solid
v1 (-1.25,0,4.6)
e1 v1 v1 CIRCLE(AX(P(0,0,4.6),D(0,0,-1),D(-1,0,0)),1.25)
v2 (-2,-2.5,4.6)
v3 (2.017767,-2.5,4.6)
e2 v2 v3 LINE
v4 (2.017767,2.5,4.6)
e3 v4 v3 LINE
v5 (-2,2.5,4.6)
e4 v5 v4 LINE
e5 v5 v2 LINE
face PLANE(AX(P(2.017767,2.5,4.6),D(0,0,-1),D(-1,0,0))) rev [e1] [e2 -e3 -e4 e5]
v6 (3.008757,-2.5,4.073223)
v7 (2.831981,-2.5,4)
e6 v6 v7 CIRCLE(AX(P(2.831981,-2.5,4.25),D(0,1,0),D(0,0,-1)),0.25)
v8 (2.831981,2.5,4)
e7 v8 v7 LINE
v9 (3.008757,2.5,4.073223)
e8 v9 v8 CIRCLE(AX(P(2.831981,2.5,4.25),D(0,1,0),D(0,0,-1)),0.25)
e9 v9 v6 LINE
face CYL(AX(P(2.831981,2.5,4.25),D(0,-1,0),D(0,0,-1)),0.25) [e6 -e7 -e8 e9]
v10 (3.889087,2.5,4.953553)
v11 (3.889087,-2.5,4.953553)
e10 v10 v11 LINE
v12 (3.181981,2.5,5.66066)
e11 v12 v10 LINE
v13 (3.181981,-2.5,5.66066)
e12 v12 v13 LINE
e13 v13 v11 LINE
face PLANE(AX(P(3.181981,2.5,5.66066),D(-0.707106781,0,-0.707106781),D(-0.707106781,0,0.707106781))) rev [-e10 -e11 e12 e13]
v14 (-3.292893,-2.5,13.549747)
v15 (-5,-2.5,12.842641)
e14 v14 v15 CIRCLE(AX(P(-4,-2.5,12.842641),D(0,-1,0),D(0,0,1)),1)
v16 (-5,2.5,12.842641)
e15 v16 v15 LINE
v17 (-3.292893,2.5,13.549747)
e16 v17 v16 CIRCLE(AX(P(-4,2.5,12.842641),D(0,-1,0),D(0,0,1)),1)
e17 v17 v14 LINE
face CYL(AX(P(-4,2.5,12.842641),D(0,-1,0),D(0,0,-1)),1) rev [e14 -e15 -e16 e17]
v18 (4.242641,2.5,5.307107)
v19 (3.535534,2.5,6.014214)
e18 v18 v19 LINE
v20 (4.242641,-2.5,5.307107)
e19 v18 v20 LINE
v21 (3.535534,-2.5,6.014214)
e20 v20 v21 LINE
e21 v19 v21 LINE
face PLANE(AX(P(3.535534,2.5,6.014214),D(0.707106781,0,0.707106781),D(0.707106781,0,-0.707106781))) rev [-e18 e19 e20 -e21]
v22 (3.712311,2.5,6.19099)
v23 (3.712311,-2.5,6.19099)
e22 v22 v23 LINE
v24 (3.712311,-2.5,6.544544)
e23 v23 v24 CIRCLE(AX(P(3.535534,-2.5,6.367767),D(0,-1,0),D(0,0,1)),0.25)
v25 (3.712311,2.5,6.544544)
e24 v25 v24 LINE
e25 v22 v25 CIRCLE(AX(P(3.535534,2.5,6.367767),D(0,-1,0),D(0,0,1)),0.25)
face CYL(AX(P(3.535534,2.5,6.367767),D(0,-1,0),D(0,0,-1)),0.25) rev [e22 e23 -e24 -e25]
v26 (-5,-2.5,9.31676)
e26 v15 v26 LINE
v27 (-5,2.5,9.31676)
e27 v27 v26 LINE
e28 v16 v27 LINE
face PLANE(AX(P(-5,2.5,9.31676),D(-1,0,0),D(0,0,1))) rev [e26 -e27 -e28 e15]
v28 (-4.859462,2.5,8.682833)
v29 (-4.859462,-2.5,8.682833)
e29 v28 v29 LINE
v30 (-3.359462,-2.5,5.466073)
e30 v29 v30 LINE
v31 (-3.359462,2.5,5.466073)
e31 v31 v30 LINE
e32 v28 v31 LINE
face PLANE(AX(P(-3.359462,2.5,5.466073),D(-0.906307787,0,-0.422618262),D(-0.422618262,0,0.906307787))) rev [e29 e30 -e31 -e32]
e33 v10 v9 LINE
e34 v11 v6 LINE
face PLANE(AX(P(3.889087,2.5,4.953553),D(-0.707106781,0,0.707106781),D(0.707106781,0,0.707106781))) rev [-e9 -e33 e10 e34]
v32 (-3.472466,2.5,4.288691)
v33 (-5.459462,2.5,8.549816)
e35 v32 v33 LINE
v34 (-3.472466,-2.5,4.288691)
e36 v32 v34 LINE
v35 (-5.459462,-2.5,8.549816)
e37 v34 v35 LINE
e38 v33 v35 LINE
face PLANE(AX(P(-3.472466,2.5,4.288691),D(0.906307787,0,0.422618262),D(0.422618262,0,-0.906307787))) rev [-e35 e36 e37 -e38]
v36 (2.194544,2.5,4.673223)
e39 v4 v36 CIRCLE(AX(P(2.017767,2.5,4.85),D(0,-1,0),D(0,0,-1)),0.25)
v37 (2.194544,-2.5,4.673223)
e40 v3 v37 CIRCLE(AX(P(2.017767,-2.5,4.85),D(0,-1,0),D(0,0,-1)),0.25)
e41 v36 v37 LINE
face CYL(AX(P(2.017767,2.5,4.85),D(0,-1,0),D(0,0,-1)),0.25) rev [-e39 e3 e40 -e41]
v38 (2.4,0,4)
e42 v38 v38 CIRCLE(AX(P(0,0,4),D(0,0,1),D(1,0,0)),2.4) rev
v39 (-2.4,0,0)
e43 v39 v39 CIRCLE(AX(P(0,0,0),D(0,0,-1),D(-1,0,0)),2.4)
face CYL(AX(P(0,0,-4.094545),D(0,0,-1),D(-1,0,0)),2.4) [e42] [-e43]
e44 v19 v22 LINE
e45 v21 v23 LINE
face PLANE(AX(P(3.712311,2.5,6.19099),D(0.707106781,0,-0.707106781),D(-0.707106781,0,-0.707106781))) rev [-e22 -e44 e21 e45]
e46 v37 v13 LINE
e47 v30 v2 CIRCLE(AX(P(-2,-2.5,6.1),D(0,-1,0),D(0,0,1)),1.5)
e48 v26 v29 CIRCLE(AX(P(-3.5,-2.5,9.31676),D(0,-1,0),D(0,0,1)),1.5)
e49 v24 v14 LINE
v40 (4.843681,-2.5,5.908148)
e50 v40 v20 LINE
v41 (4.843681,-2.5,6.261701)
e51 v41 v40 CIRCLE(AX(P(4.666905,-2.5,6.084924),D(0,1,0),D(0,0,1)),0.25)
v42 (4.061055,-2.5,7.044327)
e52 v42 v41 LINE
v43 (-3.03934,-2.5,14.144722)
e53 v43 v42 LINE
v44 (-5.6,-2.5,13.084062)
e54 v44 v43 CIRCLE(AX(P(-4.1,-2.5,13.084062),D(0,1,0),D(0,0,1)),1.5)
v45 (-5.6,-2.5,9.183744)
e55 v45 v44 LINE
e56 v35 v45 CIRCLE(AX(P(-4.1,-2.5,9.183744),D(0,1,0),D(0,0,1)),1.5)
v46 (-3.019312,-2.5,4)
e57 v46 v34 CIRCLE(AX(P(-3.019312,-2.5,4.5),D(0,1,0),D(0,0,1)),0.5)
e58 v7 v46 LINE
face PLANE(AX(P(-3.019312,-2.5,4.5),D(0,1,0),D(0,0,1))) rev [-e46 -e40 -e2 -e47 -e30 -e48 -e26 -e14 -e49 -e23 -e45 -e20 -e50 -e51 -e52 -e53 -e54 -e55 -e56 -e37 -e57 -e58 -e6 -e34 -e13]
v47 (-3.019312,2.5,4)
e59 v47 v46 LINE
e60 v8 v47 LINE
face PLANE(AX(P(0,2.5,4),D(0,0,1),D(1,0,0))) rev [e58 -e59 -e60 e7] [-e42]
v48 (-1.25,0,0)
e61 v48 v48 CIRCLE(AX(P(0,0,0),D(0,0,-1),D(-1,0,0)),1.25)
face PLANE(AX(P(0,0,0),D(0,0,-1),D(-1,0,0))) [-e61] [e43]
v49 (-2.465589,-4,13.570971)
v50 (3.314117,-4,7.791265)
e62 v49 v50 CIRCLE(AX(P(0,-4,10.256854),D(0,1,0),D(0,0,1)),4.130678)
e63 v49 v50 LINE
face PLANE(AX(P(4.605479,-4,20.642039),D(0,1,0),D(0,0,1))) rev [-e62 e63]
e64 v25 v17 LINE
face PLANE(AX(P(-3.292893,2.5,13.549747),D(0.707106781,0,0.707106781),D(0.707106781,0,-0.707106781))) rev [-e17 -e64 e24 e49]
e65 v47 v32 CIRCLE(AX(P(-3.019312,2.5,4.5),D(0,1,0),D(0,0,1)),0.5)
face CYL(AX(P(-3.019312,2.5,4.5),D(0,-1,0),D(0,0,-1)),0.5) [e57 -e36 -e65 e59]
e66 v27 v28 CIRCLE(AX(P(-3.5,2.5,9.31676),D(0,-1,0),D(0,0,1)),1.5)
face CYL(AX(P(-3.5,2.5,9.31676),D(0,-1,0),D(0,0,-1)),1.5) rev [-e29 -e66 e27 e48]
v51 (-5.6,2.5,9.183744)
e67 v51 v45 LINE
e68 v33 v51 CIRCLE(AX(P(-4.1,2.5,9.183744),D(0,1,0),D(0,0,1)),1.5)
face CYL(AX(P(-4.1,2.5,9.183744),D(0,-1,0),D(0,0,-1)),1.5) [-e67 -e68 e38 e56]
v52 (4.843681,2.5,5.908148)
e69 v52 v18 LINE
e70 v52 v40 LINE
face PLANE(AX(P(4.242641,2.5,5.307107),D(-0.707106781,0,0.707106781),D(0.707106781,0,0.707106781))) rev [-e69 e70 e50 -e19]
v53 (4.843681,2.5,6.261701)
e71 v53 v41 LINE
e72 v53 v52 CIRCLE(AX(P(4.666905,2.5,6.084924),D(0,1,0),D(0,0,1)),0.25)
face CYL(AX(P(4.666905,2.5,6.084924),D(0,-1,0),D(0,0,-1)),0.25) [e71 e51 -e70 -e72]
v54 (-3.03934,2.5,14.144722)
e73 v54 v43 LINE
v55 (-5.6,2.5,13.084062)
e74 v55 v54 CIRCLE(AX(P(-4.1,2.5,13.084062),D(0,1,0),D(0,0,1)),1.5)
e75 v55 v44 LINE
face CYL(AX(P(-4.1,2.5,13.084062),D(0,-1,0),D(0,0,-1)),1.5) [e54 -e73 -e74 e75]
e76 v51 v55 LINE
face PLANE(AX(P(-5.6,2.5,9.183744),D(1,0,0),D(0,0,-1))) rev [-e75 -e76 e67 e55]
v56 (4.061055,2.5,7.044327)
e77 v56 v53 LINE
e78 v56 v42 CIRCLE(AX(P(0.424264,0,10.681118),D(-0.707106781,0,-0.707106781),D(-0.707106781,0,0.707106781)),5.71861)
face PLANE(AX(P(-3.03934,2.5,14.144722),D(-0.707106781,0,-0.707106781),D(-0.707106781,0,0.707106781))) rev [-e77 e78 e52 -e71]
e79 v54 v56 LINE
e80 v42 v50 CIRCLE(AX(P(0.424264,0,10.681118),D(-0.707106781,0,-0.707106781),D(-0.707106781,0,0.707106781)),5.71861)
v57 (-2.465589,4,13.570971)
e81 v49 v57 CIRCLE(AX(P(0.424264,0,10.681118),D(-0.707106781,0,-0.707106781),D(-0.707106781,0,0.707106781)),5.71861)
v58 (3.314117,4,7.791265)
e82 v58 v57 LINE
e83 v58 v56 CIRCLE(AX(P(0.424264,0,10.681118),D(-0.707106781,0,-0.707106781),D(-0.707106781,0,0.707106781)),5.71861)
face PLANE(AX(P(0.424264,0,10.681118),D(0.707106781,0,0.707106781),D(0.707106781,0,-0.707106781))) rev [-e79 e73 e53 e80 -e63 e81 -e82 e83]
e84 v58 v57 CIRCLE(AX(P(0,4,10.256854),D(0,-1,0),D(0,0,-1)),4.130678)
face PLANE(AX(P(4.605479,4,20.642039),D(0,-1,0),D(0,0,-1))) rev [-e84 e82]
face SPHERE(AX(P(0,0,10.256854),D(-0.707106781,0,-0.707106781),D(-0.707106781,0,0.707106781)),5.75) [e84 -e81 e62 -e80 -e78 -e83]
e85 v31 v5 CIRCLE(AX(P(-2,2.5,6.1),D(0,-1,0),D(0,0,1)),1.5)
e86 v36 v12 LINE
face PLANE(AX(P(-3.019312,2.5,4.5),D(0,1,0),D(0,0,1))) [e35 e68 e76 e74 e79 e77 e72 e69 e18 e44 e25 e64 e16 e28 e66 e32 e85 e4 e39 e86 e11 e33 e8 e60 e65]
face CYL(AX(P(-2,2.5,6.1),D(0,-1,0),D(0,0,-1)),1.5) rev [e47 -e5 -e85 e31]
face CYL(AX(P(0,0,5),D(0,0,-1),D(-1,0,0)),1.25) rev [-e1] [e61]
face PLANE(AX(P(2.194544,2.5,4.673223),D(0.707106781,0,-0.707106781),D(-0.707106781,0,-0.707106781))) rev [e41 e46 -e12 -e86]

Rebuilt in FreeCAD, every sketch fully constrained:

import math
import FreeCAD as App
import Part
import Sketcher
from FreeCAD import Vector
Q = App.Units.Quantity

doc = App.newDocument("Part")
params = doc.addObject("Spreadsheet::Sheet", "Params")
for row, (alias, value) in enumerate([
    ("sketch1_height", "4 mm"),
    ("sketch1_width", "2.4 mm"),
    ("revolution_angle", "360 deg"),
    ("sketch2_radius", "1 mm"),
    ("sketch2_radius2", "0.5 mm"),
    ("sketch2_radius3", "1.5 mm"),
    ("sketch2_radius4", "0.25 mm"),
    ("sketch2_length", "1 mm"),
    ("pad1_length", "5 mm"),
    ("sketch3_diameter", "2.5 mm"),
    ("pocket1_length", "5 mm"),
    ("sketch4_radius", "5.75 mm"),
    ("sketch4_length", "5.15 mm"),
    ("revolution2_angle", "360 deg"),
    ("pocket2_length", "10 mm"),
], start=1):
    params.set(f"A{row}", alias)
    params.set(f"B{row}", "=" + value)
    params.setAlias(f"B{row}", alias)

body = doc.addObject("PartDesign::Body", "Body")

# Sketch on XZ plane
sketch1 = body.newObject("Sketcher::SketchObject", "Sketch")
sketch1.AttachmentSupport = (doc.getObject("XZ_Plane"), [""])
sketch1.MapMode = "FlatFace"
sketch1.addGeometry([
    Part.LineSegment(Vector(-2.4, 0, 0), Vector(-2.4, 4, 0)),
    Part.LineSegment(Vector(-2.4, 4, 0), Vector(0, 4, 0)),
    Part.LineSegment(Vector(0, 4, 0), Vector(0, 0, 0)),
    Part.LineSegment(Vector(0, 0, 0), Vector(-2.4, 0, 0)),
], False)
sketch1.addConstraint([
    Sketcher.Constraint("Coincident", 0, 2, 1, 1),
    Sketcher.Constraint("Coincident", 1, 2, 2, 1),
    Sketcher.Constraint("Coincident", 2, 2, 3, 1),
    Sketcher.Constraint("Coincident", 3, 2, 0, 1),
    Sketcher.Constraint("Vertical", 0),
    Sketcher.Constraint("Horizontal", 1),
    Sketcher.Constraint("Vertical", 2),
    Sketcher.Constraint("Horizontal", 3),
    Sketcher.Constraint("Coincident", 2, 2, -1, 1),
    Sketcher.Constraint("DistanceY", 0, 1, 0, 2, 4.0),
    Sketcher.Constraint("DistanceX", 1, 1, 1, 2, 2.4),
])
sketch1.setExpression("Constraints[9]", "Params.sketch1_height")
sketch1.setExpression("Constraints[10]", "Params.sketch1_width")
revolution = body.newObject("PartDesign::Revolution", "Revolution")
revolution.Profile = sketch1
revolution.ReferenceAxis = (sketch1, ["V_Axis"])
revolution.setExpression("Angle", "Params.revolution_angle")

# Sketch on XZ plane
sketch2 = body.newObject("Sketcher::SketchObject", "Sketch001")
sketch2.AttachmentSupport = (doc.getObject("XZ_Plane"), [""])
sketch2.MapMode = "FlatFace"
sketch2.addGeometry([
    Part.ArcOfCircle(Part.Circle(Vector(-3.02, 4.5, 0), Vector(0, 0, 1), 0.5), math.radians(-155), math.radians(-90)),  # 0
    Part.LineSegment(Vector(-3.47, 4.29, 0), Vector(-5.46, 8.55, 0)),  # 1
    Part.ArcOfCircle(Part.Circle(Vector(-4.1, 9.18, 0), Vector(0, 0, 1), 1.5), math.radians(180), math.radians(205)),  # 2
    Part.LineSegment(Vector(-5.6, 9.18, 0), Vector(-5.6, 13.08, 0)),  # 3
    Part.ArcOfCircle(Part.Circle(Vector(-4.1, 13.08, 0), Vector(0, 0, 1), 1.5), math.radians(45), math.radians(180)),  # 4
    Part.LineSegment(Vector(-3.04, 14.14, 0), Vector(4.84, 6.26, 0)),  # 5
    Part.ArcOfCircle(Part.Circle(Vector(4.67, 6.08, 0), Vector(0, 0, 1), 0.25), math.radians(-45), math.radians(45)),  # 6
    Part.LineSegment(Vector(4.84, 5.91, 0), Vector(4.24, 5.31, 0)),  # 7
    Part.LineSegment(Vector(4.24, 5.31, 0), Vector(3.54, 6.01, 0)),  # 8
    Part.LineSegment(Vector(3.54, 6.01, 0), Vector(3.71, 6.19, 0)),  # 9
    Part.ArcOfCircle(Part.Circle(Vector(3.54, 6.37, 0), Vector(0, 0, 1), 0.25), math.radians(-45), math.radians(45)),  # 10
    Part.LineSegment(Vector(3.71, 6.54, 0), Vector(-3.29, 13.55, 0)),  # 11
    Part.ArcOfCircle(Part.Circle(Vector(-4, 12.84, 0), Vector(0, 0, 1), 1), math.radians(45), math.radians(180)),  # 12
    Part.LineSegment(Vector(-5, 12.84, 0), Vector(-5, 9.32, 0)),  # 13
    Part.ArcOfCircle(Part.Circle(Vector(-3.5, 9.32, 0), Vector(0, 0, 1), 1.5), math.radians(180), math.radians(205)),  # 14
    Part.LineSegment(Vector(-4.86, 8.68, 0), Vector(-3.36, 5.47, 0)),  # 15
    Part.ArcOfCircle(Part.Circle(Vector(-2, 6.1, 0), Vector(0, 0, 1), 1.5), math.radians(-155), math.radians(-90)),  # 16
    Part.LineSegment(Vector(-2, 4.6, 0), Vector(2.02, 4.6, 0)),  # 17
    Part.ArcOfCircle(Part.Circle(Vector(2.02, 4.85, 0), Vector(0, 0, 1), 0.25), math.radians(-90), math.radians(-45)),  # 18
    Part.LineSegment(Vector(2.19, 4.67, 0), Vector(3.18, 5.66, 0)),  # 19
    Part.LineSegment(Vector(3.18, 5.66, 0), Vector(3.89, 4.95, 0)),  # 20
    Part.LineSegment(Vector(3.89, 4.95, 0), Vector(3.01, 4.07, 0)),  # 21
    Part.ArcOfCircle(Part.Circle(Vector(2.83, 4.25, 0), Vector(0, 0, 1), 0.25), math.radians(-90), math.radians(-45)),  # 22
    Part.LineSegment(Vector(2.83, 4, 0), Vector(-3.02, 4, 0)),  # 23
], False)
sketch2.addConstraint([
    Sketcher.Constraint("Tangent", 0, 1, 1, 1),
    Sketcher.Constraint("Tangent", 1, 2, 2, 2),
    Sketcher.Constraint("Tangent", 2, 1, 3, 1),
    Sketcher.Constraint("Tangent", 3, 2, 4, 2),
    Sketcher.Constraint("Tangent", 4, 1, 5, 1),
    Sketcher.Constraint("Tangent", 5, 2, 6, 2),
    Sketcher.Constraint("Tangent", 6, 1, 7, 1),
    Sketcher.Constraint("Coincident", 7, 2, 8, 1),
    Sketcher.Constraint("Coincident", 8, 2, 9, 1),
    Sketcher.Constraint("Tangent", 9, 2, 10, 1),
    Sketcher.Constraint("Tangent", 10, 2, 11, 1),
    Sketcher.Constraint("Tangent", 11, 2, 12, 1),
    Sketcher.Constraint("Tangent", 12, 2, 13, 1),
    Sketcher.Constraint("Tangent", 13, 2, 14, 1),
    Sketcher.Constraint("Tangent", 14, 2, 15, 1),
    Sketcher.Constraint("Tangent", 15, 2, 16, 1),
    Sketcher.Constraint("Tangent", 16, 2, 17, 1),
    Sketcher.Constraint("Tangent", 17, 2, 18, 1),
    Sketcher.Constraint("Tangent", 18, 2, 19, 1),
    Sketcher.Constraint("Coincident", 19, 2, 20, 1),
    Sketcher.Constraint("Coincident", 20, 2, 21, 1),
    Sketcher.Constraint("Tangent", 21, 2, 22, 2),
    Sketcher.Constraint("Tangent", 22, 1, 23, 1),
    Sketcher.Constraint("Tangent", 23, 2, 0, 2),
    Sketcher.Constraint("Vertical", 3),
    Sketcher.Constraint("Vertical", 13),
    Sketcher.Constraint("Horizontal", 17),
    Sketcher.Constraint("Horizontal", 23),
    Sketcher.Constraint("Equal", 2, 4),
    Sketcher.Constraint("Equal", 6, 10),
    Sketcher.Constraint("Equal", 4, 14),
    Sketcher.Constraint("Equal", 14, 16),
    Sketcher.Constraint("Equal", 10, 18),
    Sketcher.Constraint("Equal", 18, 22),
    Sketcher.Constraint("Perpendicular", 5, 7),
    Sketcher.Constraint("Perpendicular", 7, 8),
    Sketcher.Constraint("Perpendicular", 8, 9),
    Sketcher.Constraint("Perpendicular", 9, 11),
    Sketcher.Constraint("Parallel", 1, 15),
    Sketcher.Constraint("Perpendicular", 11, 19),
    Sketcher.Constraint("Perpendicular", 19, 20),
    Sketcher.Constraint("Perpendicular", 20, 21),
    Sketcher.Constraint("Vertical", 5, 2, 6, 1),
    Sketcher.Constraint("Vertical", 10, 3, 8, 2),
    Sketcher.Constraint("Equal", 8, 20),
    Sketcher.Constraint("Radius", 12, 1.0),
    Sketcher.Constraint("Radius", 0, 0.5),
    Sketcher.Constraint("Radius", 2, 1.5),
    Sketcher.Constraint("Angle", 1, Q("115 deg")),
    Sketcher.Constraint("Radius", 6, 0.25),
    Sketcher.Constraint("Distance", 8, 1.0),
    Sketcher.Constraint("DistanceX", 12, 3, -1, 1, 4.0),
    Sketcher.Constraint("DistanceX", 16, 3, -1, 1, 2.0),
    Sketcher.Constraint("DistanceY", -1, 1, 22, 1, 4.0),
    Sketcher.Constraint("DistanceX", 2, 3, -1, 1, 4.1),
    Sketcher.Constraint("DistanceY", -1, 1, 16, 3, 6.1),
    Sketcher.Constraint("Distance", 7, 0.85),
    Sketcher.Constraint("DistanceY", 3, 1, 3, 2, 3.900318),
    Sketcher.Constraint("DistanceY", 13, 2, 13, 1, 3.52588),
    Sketcher.Constraint("DistanceY", -1, 1, 5, 2, 6.261701),
    Sketcher.Constraint("DistanceX", 22, 3, 5, 2, 2.011701),
    Sketcher.Constraint("DistanceX", -1, 1, 19, 2, 3.181981),
])
sketch2.setExpression("Constraints[45]", "Params.sketch2_radius")
sketch2.setExpression("Constraints[46]", "Params.sketch2_radius2")
sketch2.setExpression("Constraints[47]", "Params.sketch2_radius3")
sketch2.setExpression("Constraints[49]", "Params.sketch2_radius4")
sketch2.setExpression("Constraints[50]", "Params.sketch2_length")
pad1 = body.newObject("PartDesign::Pad", "Pad")
pad1.Profile = sketch2
pad1.setExpression("Length", "Params.pad1_length")
pad1.Midplane = True

# Sketch on XY plane
sketch3 = body.newObject("Sketcher::SketchObject", "Sketch002")
sketch3.AttachmentSupport = (doc.getObject("XY_Plane"), [""])
sketch3.MapMode = "FlatFace"
sketch3.addGeometry(Part.Circle(Vector(0, 0, 0), Vector(0, 0, 1), 1.2), False)
sketch3.addConstraint([
    Sketcher.Constraint("Coincident", 0, 3, -1, 1),
    Sketcher.Constraint("Diameter", 0, 2.5),
])
sketch3.setExpression("Constraints[1]", "Params.sketch3_diameter")
pocket1 = body.newObject("PartDesign::Pocket", "Pocket")
pocket1.Profile = sketch3
pocket1.setExpression("Length", "Params.pocket1_length")
pocket1.Reversed = True

# Sketch on XZ plane
sketch4 = body.newObject("Sketcher::SketchObject", "Sketch003")
sketch4.AttachmentSupport = (doc.getObject("XZ_Plane"), [""])
sketch4.MapMode = "FlatFace"
sketch4.addGeometry([
    Part.LineSegment(Vector(-4, 15, 0), Vector(0, 11, 0)),
    Part.LineSegment(Vector(0, 11, 0), Vector(4, 14, 0)),
    Part.ArcOfCircle(Part.Circle(Vector(0, 10, 0), Vector(0, 0, 1), 6), math.radians(45), math.radians(129)),
], False)
sketch4.addGeometry(Part.LineSegment(Vector(0, 10, 0), Vector(4, 14, 0)), True)  # axis
sketch4.addConstraint([
    Sketcher.Constraint("Coincident", 0, 2, 1, 1),
    Sketcher.Constraint("Coincident", 1, 2, 2, 1),
    Sketcher.Constraint("Coincident", 2, 2, 0, 1),
    Sketcher.Constraint("Coincident", 3, 1, 2, 3),
    Sketcher.Constraint("Coincident", 3, 2, 1, 2),
    Sketcher.Constraint("PointOnObject", 2, 3, -2),
    Sketcher.Constraint("Perpendicular", 0, 1),
    Sketcher.Constraint("Parallel", 1, 3),
    Sketcher.Constraint("Angle", 0, Q("-45 deg")),
    Sketcher.Constraint("Radius", 2, 5.75),
    Sketcher.Constraint("Distance", 1, 5.15),
    Sketcher.Constraint("DistanceY", -1, 1, 0, 2, 10.681118),
])
sketch4.setExpression("Constraints[9]", "Params.sketch4_radius")
sketch4.setExpression("Constraints[10]", "Params.sketch4_length")
revolution2 = body.newObject("PartDesign::Revolution", "Revolution001")
revolution2.Profile = sketch4
revolution2.ReferenceAxis = (sketch4, ["Axis0"])
revolution2.setExpression("Angle", "Params.revolution2_angle")

# Sketch on an angled plane
sketch5 = body.newObject("Sketcher::SketchObject", "Sketch004")
sketch5.Placement = App.Placement(Vector(5.552691, 0, 5.552691), App.Rotation(Vector(-0.707106781, 0, 0.707106781), Vector(0, 0.999999999, 0), Vector(-0.707106781, 0, -0.707106781), "ZXY"))
sketch5.addGeometry([
    Part.LineSegment(Vector(3, 4, 0), Vector(11, 4, 0)),
    Part.ArcOfCircle(Part.Circle(Vector(7, 0, 0), Vector(0, 0, 1), 6), math.radians(44), math.radians(136)),
    Part.LineSegment(Vector(11, -4, 0), Vector(3, -4, 0)),
    Part.ArcOfCircle(Part.Circle(Vector(7, 0, 0), Vector(0, 0, 1), 6), math.radians(-136), math.radians(-44)),
], False)
sketch5.addConstraint([
    Sketcher.Constraint("Coincident", 0, 1, 1, 2),
    Sketcher.Constraint("Coincident", 1, 1, 0, 2),
    Sketcher.Constraint("Coincident", 2, 1, 3, 2),
    Sketcher.Constraint("Coincident", 3, 1, 2, 2),
    Sketcher.Constraint("Horizontal", 0),
    Sketcher.Constraint("Horizontal", 2),
    Sketcher.Constraint("Coincident", 3, 3, 1, 3),
    Sketcher.Constraint("Equal", 1, 3),
    Sketcher.Constraint("Symmetric", 1, 1, 2, 1, -1),
    Sketcher.Constraint("DistanceY", -1, 1, 0, 1, 4.0),
    Sketcher.Constraint("Radius", 1, 5.71861),
    Sketcher.Constraint("DistanceX", -1, 1, 1, 3, 7.252691),
])
pocket2 = body.newObject("PartDesign::Pocket", "Pocket001")
pocket2.Profile = sketch5
pocket2.setExpression("Length", "Params.pocket2_length")

doc.recompute()
